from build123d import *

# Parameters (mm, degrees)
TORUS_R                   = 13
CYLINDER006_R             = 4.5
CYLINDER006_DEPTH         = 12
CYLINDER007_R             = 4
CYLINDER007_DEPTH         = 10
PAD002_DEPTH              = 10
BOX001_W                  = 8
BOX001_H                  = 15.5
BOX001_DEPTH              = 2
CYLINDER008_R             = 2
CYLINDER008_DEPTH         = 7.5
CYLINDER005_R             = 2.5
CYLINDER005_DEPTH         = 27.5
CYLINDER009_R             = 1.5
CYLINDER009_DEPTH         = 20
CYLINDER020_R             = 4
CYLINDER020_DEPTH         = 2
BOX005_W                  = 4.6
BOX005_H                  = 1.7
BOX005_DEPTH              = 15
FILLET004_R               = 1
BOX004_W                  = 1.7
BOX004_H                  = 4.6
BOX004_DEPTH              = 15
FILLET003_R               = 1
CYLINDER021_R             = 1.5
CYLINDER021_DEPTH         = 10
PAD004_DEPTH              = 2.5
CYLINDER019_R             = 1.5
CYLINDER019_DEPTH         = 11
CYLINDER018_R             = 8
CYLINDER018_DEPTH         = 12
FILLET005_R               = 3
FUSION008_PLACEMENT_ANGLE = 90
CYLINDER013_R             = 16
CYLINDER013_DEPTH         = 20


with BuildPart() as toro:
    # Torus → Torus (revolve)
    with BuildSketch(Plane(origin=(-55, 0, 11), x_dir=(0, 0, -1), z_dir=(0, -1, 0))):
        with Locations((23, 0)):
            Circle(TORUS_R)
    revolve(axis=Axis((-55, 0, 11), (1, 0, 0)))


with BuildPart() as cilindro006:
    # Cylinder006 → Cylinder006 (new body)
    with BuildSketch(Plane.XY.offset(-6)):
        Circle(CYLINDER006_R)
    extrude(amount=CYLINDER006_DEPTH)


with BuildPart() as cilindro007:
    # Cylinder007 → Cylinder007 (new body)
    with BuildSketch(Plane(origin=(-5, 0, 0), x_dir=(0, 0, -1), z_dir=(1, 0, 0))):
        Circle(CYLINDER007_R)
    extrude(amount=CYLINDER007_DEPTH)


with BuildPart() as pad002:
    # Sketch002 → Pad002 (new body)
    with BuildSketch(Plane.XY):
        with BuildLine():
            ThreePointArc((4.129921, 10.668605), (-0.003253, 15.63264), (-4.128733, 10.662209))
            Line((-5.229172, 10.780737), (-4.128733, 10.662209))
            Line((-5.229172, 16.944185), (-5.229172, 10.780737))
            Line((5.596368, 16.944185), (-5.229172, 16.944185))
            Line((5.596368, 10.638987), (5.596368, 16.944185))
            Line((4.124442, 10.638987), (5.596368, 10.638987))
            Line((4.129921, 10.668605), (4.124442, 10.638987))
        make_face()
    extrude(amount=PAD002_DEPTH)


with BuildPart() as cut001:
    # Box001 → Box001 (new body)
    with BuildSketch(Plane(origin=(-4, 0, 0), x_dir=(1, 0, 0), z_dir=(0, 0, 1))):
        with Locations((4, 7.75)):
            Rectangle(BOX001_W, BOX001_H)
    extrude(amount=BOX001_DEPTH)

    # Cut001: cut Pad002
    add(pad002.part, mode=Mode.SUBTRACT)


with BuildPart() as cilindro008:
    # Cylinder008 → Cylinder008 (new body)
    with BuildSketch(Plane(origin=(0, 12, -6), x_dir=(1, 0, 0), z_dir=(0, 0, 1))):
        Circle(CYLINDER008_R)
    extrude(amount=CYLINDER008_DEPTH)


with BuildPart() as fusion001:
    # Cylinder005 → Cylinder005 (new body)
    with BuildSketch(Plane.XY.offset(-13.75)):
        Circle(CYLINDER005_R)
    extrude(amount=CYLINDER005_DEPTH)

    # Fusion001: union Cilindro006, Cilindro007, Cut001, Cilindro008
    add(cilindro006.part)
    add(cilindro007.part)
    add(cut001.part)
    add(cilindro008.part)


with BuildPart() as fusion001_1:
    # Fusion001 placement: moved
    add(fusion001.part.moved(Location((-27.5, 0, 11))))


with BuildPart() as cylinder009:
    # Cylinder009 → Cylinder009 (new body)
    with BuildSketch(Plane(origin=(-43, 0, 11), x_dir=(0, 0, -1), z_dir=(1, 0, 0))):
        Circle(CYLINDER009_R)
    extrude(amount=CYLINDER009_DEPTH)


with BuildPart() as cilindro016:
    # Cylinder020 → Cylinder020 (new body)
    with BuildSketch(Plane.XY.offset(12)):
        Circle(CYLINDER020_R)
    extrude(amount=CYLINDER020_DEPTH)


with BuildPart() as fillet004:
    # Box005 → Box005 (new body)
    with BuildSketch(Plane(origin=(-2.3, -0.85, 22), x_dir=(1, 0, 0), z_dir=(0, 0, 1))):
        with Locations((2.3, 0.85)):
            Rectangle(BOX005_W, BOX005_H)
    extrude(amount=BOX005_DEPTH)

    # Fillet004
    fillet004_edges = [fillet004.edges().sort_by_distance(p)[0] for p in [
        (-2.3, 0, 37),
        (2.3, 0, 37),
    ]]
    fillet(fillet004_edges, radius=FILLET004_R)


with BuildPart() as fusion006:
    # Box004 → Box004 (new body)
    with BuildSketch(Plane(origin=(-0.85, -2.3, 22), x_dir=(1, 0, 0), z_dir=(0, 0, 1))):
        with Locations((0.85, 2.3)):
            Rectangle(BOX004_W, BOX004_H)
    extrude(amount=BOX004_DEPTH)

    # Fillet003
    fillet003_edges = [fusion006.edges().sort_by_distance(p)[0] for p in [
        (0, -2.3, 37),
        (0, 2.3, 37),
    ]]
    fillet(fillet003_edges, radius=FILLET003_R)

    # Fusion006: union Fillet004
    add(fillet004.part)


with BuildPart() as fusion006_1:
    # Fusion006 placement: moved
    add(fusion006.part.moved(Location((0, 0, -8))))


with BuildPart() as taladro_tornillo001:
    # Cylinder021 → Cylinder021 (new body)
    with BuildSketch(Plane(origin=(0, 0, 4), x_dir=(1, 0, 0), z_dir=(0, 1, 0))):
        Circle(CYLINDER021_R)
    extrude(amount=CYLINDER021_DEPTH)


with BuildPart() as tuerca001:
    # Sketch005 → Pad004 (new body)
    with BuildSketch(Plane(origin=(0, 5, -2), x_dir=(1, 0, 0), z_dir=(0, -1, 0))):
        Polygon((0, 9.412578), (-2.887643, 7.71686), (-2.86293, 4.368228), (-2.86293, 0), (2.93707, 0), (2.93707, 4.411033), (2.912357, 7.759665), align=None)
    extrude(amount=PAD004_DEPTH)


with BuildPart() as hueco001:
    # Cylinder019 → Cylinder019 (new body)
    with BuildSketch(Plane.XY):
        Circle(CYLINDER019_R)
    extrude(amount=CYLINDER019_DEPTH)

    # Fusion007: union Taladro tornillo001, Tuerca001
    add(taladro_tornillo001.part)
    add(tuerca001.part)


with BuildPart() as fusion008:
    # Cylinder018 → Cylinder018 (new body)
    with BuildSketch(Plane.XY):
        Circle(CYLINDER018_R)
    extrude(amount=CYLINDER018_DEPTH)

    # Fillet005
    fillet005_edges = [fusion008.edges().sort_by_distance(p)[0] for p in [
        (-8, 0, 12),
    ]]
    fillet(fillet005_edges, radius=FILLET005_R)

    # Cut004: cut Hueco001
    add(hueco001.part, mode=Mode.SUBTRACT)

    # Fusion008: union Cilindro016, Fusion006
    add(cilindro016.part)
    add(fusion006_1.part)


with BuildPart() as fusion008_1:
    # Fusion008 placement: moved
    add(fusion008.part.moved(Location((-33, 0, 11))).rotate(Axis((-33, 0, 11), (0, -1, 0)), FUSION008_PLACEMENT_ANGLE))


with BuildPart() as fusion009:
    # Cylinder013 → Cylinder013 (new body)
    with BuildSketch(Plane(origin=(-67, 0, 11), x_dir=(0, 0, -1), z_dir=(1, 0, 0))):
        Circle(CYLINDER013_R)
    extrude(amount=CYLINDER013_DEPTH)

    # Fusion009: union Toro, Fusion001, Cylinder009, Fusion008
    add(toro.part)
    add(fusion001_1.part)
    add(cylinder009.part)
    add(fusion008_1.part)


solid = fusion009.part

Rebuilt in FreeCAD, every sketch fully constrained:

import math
import FreeCAD as App
import Part
import Sketcher


def edges_at(feature, points):
    """Names of the edges that pass closest to the given points."""
    edges = feature.Shape.Edges
    near = lambda p: min(range(len(edges)), key=lambda i: edges[i].distToShape(Part.Vertex(*p))[0])
    return sorted({f"Edge{near(p) + 1}" for p in points})


def add_polygon(sketch, points):
    """Adds a closed chain of lines whose ends are joined by coincident constraints."""
    first, n = sketch.GeometryCount, len(points)
    for a, b in zip(points, points[1:] + points[:1]):
        sketch.addGeometry(Part.LineSegment(App.Vector(*a, 0), App.Vector(*b, 0)), False)
    for i in range(n):
        sketch.addConstraint(Sketcher.Constraint("Coincident", first + i, 2, first + (i + 1) % n, 1))

doc = App.newDocument("Part")
body = doc.addObject("PartDesign::Body", "Body")

# Sketch on XZ plane
sketch1 = body.newObject("Sketcher::SketchObject", "Sketch")
sketch1.AttachmentSupport = (doc.getObject("XZ_Plane"), [""])
sketch1.MapMode = "FlatFace"
sketch1.addGeometry(Part.Circle(App.Vector(-55, -12, 0), App.Vector(0, 0, 1), 13), False)
sketch1.addGeometry(Part.LineSegment(App.Vector(-55, 11, 0), App.Vector(-45, 11, 0)), True)  # axis
sketch1.addConstraint([
    Sketcher.Constraint("Horizontal", 1),
    Sketcher.Constraint("Vertical", 0, 3, 1, 1),
    Sketcher.Constraint("Diameter", 0, 26.0),
    Sketcher.Constraint("DistanceX", 1, 1, 1, 2, 10.0),
    Sketcher.Constraint("DistanceX", 0, 3, -1, 1, 55.0),
    Sketcher.Constraint("DistanceY", 0, 3, -1, 1, 12.0),
    Sketcher.Constraint("DistanceY", -1, 1, 1, 1, 11.0),
])
revolution = body.newObject("PartDesign::Revolution", "Revolution")
revolution.Profile = sketch1
revolution.ReferenceAxis = (sketch1, ["Axis0"])
revolution.Angle = 360
body2 = doc.addObject("PartDesign::Body", "Body001")

# Sketch on XY plane
sketch2 = body2.newObject("Sketcher::SketchObject", "Sketch001")
sketch2.AttachmentSupport = (doc.getObject("XY_Plane001"), [""])
sketch2.MapMode = "FlatFace"
sketch2.AttachmentOffset = App.Placement(App.Vector(0, 0, -6), App.Rotation())
sketch2.addGeometry(Part.Circle(App.Vector(0, 0, 0), App.Vector(0, 0, 1), 4.5), False)
sketch2.addConstraint([
    Sketcher.Constraint("Coincident", 0, 3, -1, 1),
    Sketcher.Constraint("Diameter", 0, 9.0),
])
pad1 = body2.newObject("PartDesign::Pad", "Pad")
pad1.Profile = sketch2
pad1.Length = 12
body3 = doc.addObject("PartDesign::Body", "Body002")

# Sketch on YZ plane
sketch3 = body3.newObject("Sketcher::SketchObject", "Sketch002")
sketch3.AttachmentSupport = (doc.getObject("YZ_Plane002"), [""])
sketch3.MapMode = "FlatFace"
sketch3.AttachmentOffset = App.Placement(App.Vector(0, 0, -5), App.Rotation())
sketch3.addGeometry(Part.Circle(App.Vector(0, 0, 0), App.Vector(0, 0, 1), 4), False)
sketch3.addConstraint([
    Sketcher.Constraint("Coincident", 0, 3, -1, 1),
    Sketcher.Constraint("Diameter", 0, 8.0),
])
pad2 = body3.newObject("PartDesign::Pad", "Pad001")
pad2.Profile = sketch3
pad2.Length = 10
body4 = doc.addObject("PartDesign::Body", "Body003")

# Sketch on XY plane
sketch4 = body4.newObject("Sketcher::SketchObject", "Sketch003")
sketch4.AttachmentSupport = (doc.getObject("XY_Plane003"), [""])
sketch4.MapMode = "FlatFace"
sketch4.addGeometry([
    Part.ArcOfCircle(Part.Circle(App.Vector(0, 11.433, 0), App.Vector(0, 0, 1), 4.2), math.radians(-10), math.radians(191)),  # 0
    Part.LineSegment(App.Vector(4.13, 10.669, 0), App.Vector(4.124, 10.639, 0)),  # 1
    Part.LineSegment(App.Vector(4.124, 10.639, 0), App.Vector(5.596, 10.639, 0)),  # 2
    Part.LineSegment(App.Vector(5.596, 10.639, 0), App.Vector(5.596, 16.944, 0)),  # 3
    Part.LineSegment(App.Vector(5.596, 16.944, 0), App.Vector(-5.229, 16.944, 0)),  # 4
    Part.LineSegment(App.Vector(-5.229, 16.944, 0), App.Vector(-5.229, 10.781, 0)),  # 5
    Part.LineSegment(App.Vector(-5.229, 10.781, 0), App.Vector(-4.129, 10.662, 0)),  # 6
], False)
sketch4.addConstraint([
    Sketcher.Constraint("Coincident", 0, 1, 1, 1),
    Sketcher.Constraint("Coincident", 1, 2, 2, 1),
    Sketcher.Constraint("Coincident", 2, 2, 3, 1),
    Sketcher.Constraint("Coincident", 3, 2, 4, 1),
    Sketcher.Constraint("Coincident", 4, 2, 5, 1),
    Sketcher.Constraint("Coincident", 5, 2, 6, 1),
    Sketcher.Constraint("Coincident", 6, 2, 0, 2),
    Sketcher.Constraint("Horizontal", 2),
    Sketcher.Constraint("Vertical", 3),
    Sketcher.Constraint("Horizontal", 4),
    Sketcher.Constraint("Vertical", 5),
    Sketcher.Constraint("PointOnObject", 0, 3, -2),
    Sketcher.Constraint("Radius", 0, 4.2),
    Sketcher.Constraint("DistanceY", 3, 1, 3, 2, 6.305198),
    Sketcher.Constraint("DistanceX", 4, 2, 4, 1, 10.82554),
    Sketcher.Constraint("DistanceY", 5, 2, 5, 1, 6.163448),
    Sketcher.Constraint("Distance", 1, 0.030121),
    Sketcher.Constraint("DistanceX", 2, 1, 2, 2, 1.471926),
    Sketcher.Constraint("DistanceY", -1, 1, 0, 3, 11.432641),
    Sketcher.Constraint("DistanceX", -1, 1, 0, 1, 4.129921),
    Sketcher.Constraint("DistanceY", -1, 1, 6, 2, 10.662209),
    Sketcher.Constraint("DistanceX", 1, 2, 0, 1, 0.005479),
])
pad3 = body4.newObject("PartDesign::Pad", "Pad002")
pad3.Profile = sketch4
pad3.Length = 10
body5 = doc.addObject("PartDesign::Body", "Body004")

# Sketch on XY plane
sketch5 = body5.newObject("Sketcher::SketchObject", "Sketch004")
sketch5.AttachmentSupport = (doc.getObject("XY_Plane004"), [""])
sketch5.MapMode = "FlatFace"
add_polygon(sketch5, [(-4, 16), (-4, 0), (4, 0), (4, 16)])  # lines 0-3
sketch5.addConstraint([
    Sketcher.Constraint("Vertical", 0),
    Sketcher.Constraint("Horizontal", 1),
    Sketcher.Constraint("Vertical", 2),
    Sketcher.Constraint("Horizontal", 3),
    Sketcher.Constraint("Symmetric", 0, 2, 1, 2, -1, 1),
    Sketcher.Constraint("DistanceX", 1, 1, 1, 2, 8.0),
    Sketcher.Constraint("DistanceY", 0, 2, 0, 1, 15.5),
])
pad4 = body5.newObject("PartDesign::Pad", "Pad003")
pad4.Profile = sketch5
pad4.Length = 2
doc.recompute()

boolean = body5.newObject("PartDesign::Boolean", "Boolean")
boolean.Type = "Cut"
boolean.addObjects([body4])
body6 = doc.addObject("PartDesign::Body", "Body005")

# Sketch on XY plane
sketch6 = body6.newObject("Sketcher::SketchObject", "Sketch005")
sketch6.AttachmentSupport = (doc.getObject("XY_Plane005"), [""])
sketch6.MapMode = "FlatFace"
sketch6.AttachmentOffset = App.Placement(App.Vector(0, 0, -6), App.Rotation())
sketch6.addGeometry(Part.Circle(App.Vector(0, 12, 0), App.Vector(0, 0, 1), 2), False)
sketch6.addConstraint([
    Sketcher.Constraint("PointOnObject", 0, 3, -2),
    Sketcher.Constraint("Diameter", 0, 4.0),
    Sketcher.Constraint("DistanceY", -1, 1, 0, 3, 12.0),
])
pad5 = body6.newObject("PartDesign::Pad", "Pad004")
pad5.Profile = sketch6
pad5.Length = 7.5
body7 = doc.addObject("PartDesign::Body", "Body006")

# Sketch on XY plane
sketch7 = body7.newObject("Sketcher::SketchObject", "Sketch006")
sketch7.AttachmentSupport = (doc.getObject("XY_Plane006"), [""])
sketch7.MapMode = "FlatFace"
sketch7.AttachmentOffset = App.Placement(App.Vector(0, 0, -13.75), App.Rotation())
sketch7.addGeometry(Part.Circle(App.Vector(0, 0, 0), App.Vector(0, 0, 1), 2.5), False)
sketch7.addConstraint([
    Sketcher.Constraint("Coincident", 0, 3, -1, 1),
    Sketcher.Constraint("Diameter", 0, 5.0),
])
pad6 = body7.newObject("PartDesign::Pad", "Pad005")
pad6.Profile = sketch7
pad6.Length = 27.5
doc.recompute()

boolean2 = body7.newObject("PartDesign::Boolean", "Boolean001")
boolean2.Type = "Fuse"
boolean2.addObjects([body2])
doc.recompute()

boolean3 = body7.newObject("PartDesign::Boolean", "Boolean002")
boolean3.Type = "Fuse"
boolean3.addObjects([body3])
doc.recompute()

boolean4 = body7.newObject("PartDesign::Boolean", "Boolean003")
boolean4.Type = "Fuse"
boolean4.addObjects([body5])
doc.recompute()

boolean5 = body7.newObject("PartDesign::Boolean", "Boolean004")
boolean5.Type = "Fuse"
boolean5.addObjects([body6])
body8 = doc.addObject("PartDesign::Body", "Body007")
doc.recompute()

body7.Placement = App.Placement(App.Vector(-27.5, 0, 11), App.Rotation(App.Vector(0, 0, 1), 0))
boolean6 = body8.newObject("PartDesign::Boolean", "Boolean005")
boolean6.Type = "Fuse"
boolean6.addObjects([body7])
body9 = doc.addObject("PartDesign::Body", "Body008")

# Sketch on YZ plane
sketch8 = body9.newObject("Sketcher::SketchObject", "Sketch007")
sketch8.AttachmentSupport = (doc.getObject("YZ_Plane008"), [""])
sketch8.MapMode = "FlatFace"
sketch8.AttachmentOffset = App.Placement(App.Vector(0, 0, -43), App.Rotation())
sketch8.addGeometry(Part.Circle(App.Vector(0, 11, 0), App.Vector(0, 0, 1), 1.5), False)
sketch8.addConstraint([
    Sketcher.Constraint("PointOnObject", 0, 3, -2),
    Sketcher.Constraint("Diameter", 0, 3.0),
    Sketcher.Constraint("DistanceY", -1, 1, 0, 3, 11.0),
])
pad7 = body9.newObject("PartDesign::Pad", "Pad006")
pad7.Profile = sketch8
pad7.Length = 20
body10 = doc.addObject("PartDesign::Body", "Body009")

# Sketch on XY plane
sketch9 = body10.newObject("Sketcher::SketchObject", "Sketch008")
sketch9.AttachmentSupport = (doc.getObject("XY_Plane009"), [""])
sketch9.MapMode = "FlatFace"
sketch9.AttachmentOffset = App.Placement(App.Vector(0, 0, 12), App.Rotation())
sketch9.addGeometry(Part.Circle(App.Vector(0, 0, 0), App.Vector(0, 0, 1), 4), False)
sketch9.addConstraint([
    Sketcher.Constraint("Coincident", 0, 3, -1, 1),
    Sketcher.Constraint("Diameter", 0, 8.0),
])
pad8 = body10.newObject("PartDesign::Pad", "Pad007")
pad8.Profile = sketch9
pad8.Length = 2
body11 = doc.addObject("PartDesign::Body", "Body010")

# Sketch on XY plane
sketch10 = body11.newObject("Sketcher::SketchObject", "Sketch009")
sketch10.AttachmentSupport = (doc.getObject("XY_Plane010"), [""])
sketch10.MapMode = "FlatFace"
sketch10.AttachmentOffset = App.Placement(App.Vector(0, 0, 22), App.Rotation())
add_polygon(sketch10, [(-2.3, 0.8), (-2.3, -0.8), (2.3, -0.8), (2.3, 0.8)])  # lines 0-3
sketch10.addConstraint([
    Sketcher.Constraint("Vertical", 0),
    Sketcher.Constraint("Horizontal", 1),
    Sketcher.Constraint("Vertical", 2),
    Sketcher.Constraint("Horizontal", 3),
    Sketcher.Constraint("Symmetric", 0, 2, 2, 2, -1, 1),
    Sketcher.Constraint("DistanceX", 1, 1, 1, 2, 4.6),
    Sketcher.Constraint("DistanceY", 0, 2, 0, 1, 1.7),
])
pad9 = body11.newObject("PartDesign::Pad", "Pad008")
pad9.Profile = sketch10
pad9.Length = 15
doc.recompute()

fillet = body11.newObject("PartDesign::Fillet", "Fillet")
fillet.Base = (pad9, edges_at(pad9, [(-2.3, 0, 37), (2.3, 0, 37)]))
fillet.Radius = 1
body12 = doc.addObject("PartDesign::Body", "Body011")

# Sketch on XY plane
sketch11 = body12.newObject("Sketcher::SketchObject", "Sketch010")
sketch11.AttachmentSupport = (doc.getObject("XY_Plane011"), [""])
sketch11.MapMode = "FlatFace"
sketch11.AttachmentOffset = App.Placement(App.Vector(0, 0, 22), App.Rotation())
add_polygon(sketch11, [(-0.8, 2.3), (-0.8, -2.3), (0.8, -2.3), (0.8, 2.3)])  # lines 0-3
sketch11.addConstraint([
    Sketcher.Constraint("Vertical", 0),
    Sketcher.Constraint("Horizontal", 1),
    Sketcher.Constraint("Vertical", 2),
    Sketcher.Constraint("Horizontal", 3),
    Sketcher.Constraint("Symmetric", 0, 2, 2, 2, -1, 1),
    Sketcher.Constraint("DistanceX", 1, 1, 1, 2, 1.7),
    Sketcher.Constraint("DistanceY", 0, 2, 0, 1, 4.6),
])
pad10 = body12.newObject("PartDesign::Pad", "Pad009")
pad10.Profile = sketch11
pad10.Length = 15
doc.recompute()

fillet2 = body12.newObject("PartDesign::Fillet", "Fillet001")
fillet2.Base = (pad10, edges_at(pad10, [(0, -2.3, 37), (0, 2.3, 37)]))
fillet2.Radius = 1
doc.recompute()

boolean7 = body12.newObject("PartDesign::Boolean", "Boolean006")
boolean7.Type = "Fuse"
boolean7.addObjects([body11])
body13 = doc.addObject("PartDesign::Body", "Body012")
doc.recompute()

body12.Placement = App.Placement(App.Vector(0, 0, -8), App.Rotation(App.Vector(0, 0, 1), 0))
boolean8 = body13.newObject("PartDesign::Boolean", "Boolean007")
boolean8.Type = "Fuse"
boolean8.addObjects([body12])
body14 = doc.addObject("PartDesign::Body", "Body013")

# Sketch on XZ plane
sketch12 = body14.newObject("Sketcher::SketchObject", "Sketch011")
sketch12.AttachmentSupport = (doc.getObject("XZ_Plane013"), [""])
sketch12.MapMode = "FlatFace"
sketch12.addGeometry(Part.Circle(App.Vector(0, 4, 0), App.Vector(0, 0, 1), 1.5), False)
sketch12.addConstraint([
    Sketcher.Constraint("PointOnObject", 0, 3, -2),
    Sketcher.Constraint("Diameter", 0, 3.0),
    Sketcher.Constraint("DistanceY", -1, 1, 0, 3, 4.0),
])
pad11 = body14.newObject("PartDesign::Pad", "Pad010")
pad11.Profile = sketch12
pad11.Length = 10
pad11.Reversed = True
body15 = doc.addObject("PartDesign::Body", "Body014")

# Sketch on XZ plane
sketch13 = body15.newObject("Sketcher::SketchObject", "Sketch012")
sketch13.AttachmentSupport = (doc.getObject("XZ_Plane014"), [""])
sketch13.MapMode = "FlatFace"
sketch13.AttachmentOffset = App.Placement(App.Vector(0, 0, -5), App.Rotation())
add_polygon(sketch13, [(0, 7.4), (-2.9, 5.7), (-2.9, 2.4), (-2.9, -2), (2.9, -2), (2.9, 2.4), (2.9, 5.8)])  # lines 0-6
sketch13.addConstraint([
    Sketcher.Constraint("Vertical", 2),
    Sketcher.Constraint("Horizontal", 3),
    Sketcher.Constraint("Vertical", 4),
    Sketcher.Constraint("PointOnObject", 6, 2, -2),
    Sketcher.Constraint("Parallel", 1, 5),
    Sketcher.Constraint("Equal", 0, 1),
    Sketcher.Constraint("Equal", 1, 5),
    Sketcher.Constraint("Equal", 5, 6),
    Sketcher.Constraint("DistanceX", 3, 1, 3, 2, 5.8),
    Sketcher.Constraint("DistanceY", 2, 2, -1, 1, 2.0),
    Sketcher.Constraint("DistanceY", 2, 2, 2, 1, 4.368228),
    Sketcher.Constraint("DistanceY", 4, 1, 4, 2, 4.411033),
    Sketcher.Constraint("DistanceY", -1, 1, 0, 2, 5.71686),
    Sketcher.Constraint("DistanceX", 1, 2, -1, 1, 2.86293),
])
pad12 = body15.newObject("PartDesign::Pad", "Pad011")
pad12.Profile = sketch13
pad12.Length = 2.5
body16 = doc.addObject("PartDesign::Body", "Body015")

# Sketch on XY plane
sketch14 = body16.newObject("Sketcher::SketchObject", "Sketch013")
sketch14.AttachmentSupport = (doc.getObject("XY_Plane015"), [""])
sketch14.MapMode = "FlatFace"
sketch14.addGeometry(Part.Circle(App.Vector(0, 0, 0), App.Vector(0, 0, 1), 1.5), False)
sketch14.addConstraint([
    Sketcher.Constraint("Coincident", 0, 3, -1, 1),
    Sketcher.Constraint("Diameter", 0, 3.0),
])
pad13 = body16.newObject("PartDesign::Pad", "Pad012")
pad13.Profile = sketch14
pad13.Length = 11
doc.recompute()

boolean9 = body16.newObject("PartDesign::Boolean", "Boolean008")
boolean9.Type = "Fuse"
boolean9.addObjects([body14])
doc.recompute()

boolean10 = body16.newObject("PartDesign::Boolean", "Boolean009")
boolean10.Type = "Fuse"
boolean10.addObjects([body15])
body17 = doc.addObject("PartDesign::Body", "Body016")

# Sketch on XY plane
sketch15 = body17.newObject("Sketcher::SketchObject", "Sketch014")
sketch15.AttachmentSupport = (doc.getObject("XY_Plane016"), [""])
sketch15.MapMode = "FlatFace"
sketch15.addGeometry(Part.Circle(App.Vector(0, 0, 0), App.Vector(0, 0, 1), 8), False)
sketch15.addConstraint([
    Sketcher.Constraint("Coincident", 0, 3, -1, 1),
    Sketcher.Constraint("Diameter", 0, 16.0),
])
pad14 = body17.newObject("PartDesign::Pad", "Pad013")
pad14.Profile = sketch15
pad14.Length = 12
doc.recompute()

fillet3 = body17.newObject("PartDesign::Fillet", "Fillet002")
fillet3.Base = (pad14, edges_at(pad14, [(-8, 0, 12)]))
fillet3.Radius = 3
doc.recompute()

boolean11 = body17.newObject("PartDesign::Boolean", "Boolean010")
boolean11.Type = "Cut"
boolean11.addObjects([body16])
doc.recompute()

boolean12 = body17.newObject("PartDesign::Boolean", "Boolean011")
boolean12.Type = "Fuse"
boolean12.addObjects([body10])
doc.recompute()

boolean13 = body17.newObject("PartDesign::Boolean", "Boolean012")
boolean13.Type = "Fuse"
boolean13.addObjects([body13])
body18 = doc.addObject("PartDesign::Body", "Body017")
doc.recompute()

body17.Placement = App.Placement(App.Vector(-33, 0, 11), App.Rotation(App.Vector(0, -1, 0), 90))
boolean14 = body18.newObject("PartDesign::Boolean", "Boolean013")
boolean14.Type = "Fuse"
boolean14.addObjects([body17])
body19 = doc.addObject("PartDesign::Body", "Body018")
body19.AllowCompound = True

# Sketch on YZ plane
sketch16 = body19.newObject("Sketcher::SketchObject", "Sketch015")
sketch16.AttachmentSupport = (doc.getObject("YZ_Plane018"), [""])
sketch16.MapMode = "FlatFace"
sketch16.AttachmentOffset = App.Placement(App.Vector(0, 0, -67), App.Rotation())
sketch16.addGeometry(Part.Circle(App.Vector(0, 11, 0), App.Vector(0, 0, 1), 16), False)
sketch16.addConstraint([
    Sketcher.Constraint("PointOnObject", 0, 3, -2),
    Sketcher.Constraint("Diameter", 0, 32.0),
    Sketcher.Constraint("DistanceY", -1, 1, 0, 3, 11.0),
])
pad15 = body19.newObject("PartDesign::Pad", "Pad014")
pad15.Profile = sketch16
pad15.Length = 20
doc.recompute()

boolean15 = body19.newObject("PartDesign::Boolean", "Boolean014")
boolean15.Type = "Fuse"
boolean15.addObjects([body])
doc.recompute()

boolean16 = body19.newObject("PartDesign::Boolean", "Boolean015")
boolean16.Type = "Fuse"
boolean16.addObjects([body8])
doc.recompute()

boolean17 = body19.newObject("PartDesign::Boolean", "Boolean016")
boolean17.Type = "Fuse"
boolean17.addObjects([body9])
doc.recompute()

boolean18 = body19.newObject("PartDesign::Boolean", "Boolean017")
boolean18.Type = "Fuse"
boolean18.addObjects([body18])

doc.recompute()
